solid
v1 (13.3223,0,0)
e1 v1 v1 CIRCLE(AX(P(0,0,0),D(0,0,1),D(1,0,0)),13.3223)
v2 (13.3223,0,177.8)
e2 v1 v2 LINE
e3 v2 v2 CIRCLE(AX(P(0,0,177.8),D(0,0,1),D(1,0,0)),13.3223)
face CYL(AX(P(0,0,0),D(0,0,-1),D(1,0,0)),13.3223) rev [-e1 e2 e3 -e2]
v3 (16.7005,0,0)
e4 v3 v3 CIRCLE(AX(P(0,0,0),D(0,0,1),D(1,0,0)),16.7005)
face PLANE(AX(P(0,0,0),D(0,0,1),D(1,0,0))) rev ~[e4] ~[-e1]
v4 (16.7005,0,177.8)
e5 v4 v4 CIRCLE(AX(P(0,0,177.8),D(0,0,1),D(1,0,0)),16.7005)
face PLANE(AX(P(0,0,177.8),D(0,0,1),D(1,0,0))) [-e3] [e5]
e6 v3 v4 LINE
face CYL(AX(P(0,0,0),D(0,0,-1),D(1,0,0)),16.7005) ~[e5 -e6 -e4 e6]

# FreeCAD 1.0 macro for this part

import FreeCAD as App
import Part
import Sketcher
Q = App.Units.Quantity

doc = App.newDocument("Part")
body = doc.addObject("PartDesign::Body", "Body")

# Sketch on XY plane
sketch1 = body.newObject("Sketcher::SketchObject", "Sketch")
sketch1.AttachmentSupport = (doc.getObject("XY_Plane"), [""])
sketch1.MapMode = "FlatFace"
sketch1.addGeometry([
    Part.Circle(App.Vector(0, 0, 0), App.Vector(0, 0, 1), 17),
    Part.Circle(App.Vector(0, 0, 0), App.Vector(0, 0, 1), 13),
], False)
sketch1.addConstraint([
    Sketcher.Constraint("Coincident", 0, 3, -1, 1),
    Sketcher.Constraint("Coincident", 1, 3, -1, 1),
    Sketcher.Constraint("Diameter", 0, Q("1.315 in")),
    Sketcher.Constraint("Diameter", 1, Q("1.049 in")),
])
pad1 = body.newObject("PartDesign::Pad", "Pad")
pad1.Profile = sketch1
pad1.Length = Q("7 in")

doc.recompute()
